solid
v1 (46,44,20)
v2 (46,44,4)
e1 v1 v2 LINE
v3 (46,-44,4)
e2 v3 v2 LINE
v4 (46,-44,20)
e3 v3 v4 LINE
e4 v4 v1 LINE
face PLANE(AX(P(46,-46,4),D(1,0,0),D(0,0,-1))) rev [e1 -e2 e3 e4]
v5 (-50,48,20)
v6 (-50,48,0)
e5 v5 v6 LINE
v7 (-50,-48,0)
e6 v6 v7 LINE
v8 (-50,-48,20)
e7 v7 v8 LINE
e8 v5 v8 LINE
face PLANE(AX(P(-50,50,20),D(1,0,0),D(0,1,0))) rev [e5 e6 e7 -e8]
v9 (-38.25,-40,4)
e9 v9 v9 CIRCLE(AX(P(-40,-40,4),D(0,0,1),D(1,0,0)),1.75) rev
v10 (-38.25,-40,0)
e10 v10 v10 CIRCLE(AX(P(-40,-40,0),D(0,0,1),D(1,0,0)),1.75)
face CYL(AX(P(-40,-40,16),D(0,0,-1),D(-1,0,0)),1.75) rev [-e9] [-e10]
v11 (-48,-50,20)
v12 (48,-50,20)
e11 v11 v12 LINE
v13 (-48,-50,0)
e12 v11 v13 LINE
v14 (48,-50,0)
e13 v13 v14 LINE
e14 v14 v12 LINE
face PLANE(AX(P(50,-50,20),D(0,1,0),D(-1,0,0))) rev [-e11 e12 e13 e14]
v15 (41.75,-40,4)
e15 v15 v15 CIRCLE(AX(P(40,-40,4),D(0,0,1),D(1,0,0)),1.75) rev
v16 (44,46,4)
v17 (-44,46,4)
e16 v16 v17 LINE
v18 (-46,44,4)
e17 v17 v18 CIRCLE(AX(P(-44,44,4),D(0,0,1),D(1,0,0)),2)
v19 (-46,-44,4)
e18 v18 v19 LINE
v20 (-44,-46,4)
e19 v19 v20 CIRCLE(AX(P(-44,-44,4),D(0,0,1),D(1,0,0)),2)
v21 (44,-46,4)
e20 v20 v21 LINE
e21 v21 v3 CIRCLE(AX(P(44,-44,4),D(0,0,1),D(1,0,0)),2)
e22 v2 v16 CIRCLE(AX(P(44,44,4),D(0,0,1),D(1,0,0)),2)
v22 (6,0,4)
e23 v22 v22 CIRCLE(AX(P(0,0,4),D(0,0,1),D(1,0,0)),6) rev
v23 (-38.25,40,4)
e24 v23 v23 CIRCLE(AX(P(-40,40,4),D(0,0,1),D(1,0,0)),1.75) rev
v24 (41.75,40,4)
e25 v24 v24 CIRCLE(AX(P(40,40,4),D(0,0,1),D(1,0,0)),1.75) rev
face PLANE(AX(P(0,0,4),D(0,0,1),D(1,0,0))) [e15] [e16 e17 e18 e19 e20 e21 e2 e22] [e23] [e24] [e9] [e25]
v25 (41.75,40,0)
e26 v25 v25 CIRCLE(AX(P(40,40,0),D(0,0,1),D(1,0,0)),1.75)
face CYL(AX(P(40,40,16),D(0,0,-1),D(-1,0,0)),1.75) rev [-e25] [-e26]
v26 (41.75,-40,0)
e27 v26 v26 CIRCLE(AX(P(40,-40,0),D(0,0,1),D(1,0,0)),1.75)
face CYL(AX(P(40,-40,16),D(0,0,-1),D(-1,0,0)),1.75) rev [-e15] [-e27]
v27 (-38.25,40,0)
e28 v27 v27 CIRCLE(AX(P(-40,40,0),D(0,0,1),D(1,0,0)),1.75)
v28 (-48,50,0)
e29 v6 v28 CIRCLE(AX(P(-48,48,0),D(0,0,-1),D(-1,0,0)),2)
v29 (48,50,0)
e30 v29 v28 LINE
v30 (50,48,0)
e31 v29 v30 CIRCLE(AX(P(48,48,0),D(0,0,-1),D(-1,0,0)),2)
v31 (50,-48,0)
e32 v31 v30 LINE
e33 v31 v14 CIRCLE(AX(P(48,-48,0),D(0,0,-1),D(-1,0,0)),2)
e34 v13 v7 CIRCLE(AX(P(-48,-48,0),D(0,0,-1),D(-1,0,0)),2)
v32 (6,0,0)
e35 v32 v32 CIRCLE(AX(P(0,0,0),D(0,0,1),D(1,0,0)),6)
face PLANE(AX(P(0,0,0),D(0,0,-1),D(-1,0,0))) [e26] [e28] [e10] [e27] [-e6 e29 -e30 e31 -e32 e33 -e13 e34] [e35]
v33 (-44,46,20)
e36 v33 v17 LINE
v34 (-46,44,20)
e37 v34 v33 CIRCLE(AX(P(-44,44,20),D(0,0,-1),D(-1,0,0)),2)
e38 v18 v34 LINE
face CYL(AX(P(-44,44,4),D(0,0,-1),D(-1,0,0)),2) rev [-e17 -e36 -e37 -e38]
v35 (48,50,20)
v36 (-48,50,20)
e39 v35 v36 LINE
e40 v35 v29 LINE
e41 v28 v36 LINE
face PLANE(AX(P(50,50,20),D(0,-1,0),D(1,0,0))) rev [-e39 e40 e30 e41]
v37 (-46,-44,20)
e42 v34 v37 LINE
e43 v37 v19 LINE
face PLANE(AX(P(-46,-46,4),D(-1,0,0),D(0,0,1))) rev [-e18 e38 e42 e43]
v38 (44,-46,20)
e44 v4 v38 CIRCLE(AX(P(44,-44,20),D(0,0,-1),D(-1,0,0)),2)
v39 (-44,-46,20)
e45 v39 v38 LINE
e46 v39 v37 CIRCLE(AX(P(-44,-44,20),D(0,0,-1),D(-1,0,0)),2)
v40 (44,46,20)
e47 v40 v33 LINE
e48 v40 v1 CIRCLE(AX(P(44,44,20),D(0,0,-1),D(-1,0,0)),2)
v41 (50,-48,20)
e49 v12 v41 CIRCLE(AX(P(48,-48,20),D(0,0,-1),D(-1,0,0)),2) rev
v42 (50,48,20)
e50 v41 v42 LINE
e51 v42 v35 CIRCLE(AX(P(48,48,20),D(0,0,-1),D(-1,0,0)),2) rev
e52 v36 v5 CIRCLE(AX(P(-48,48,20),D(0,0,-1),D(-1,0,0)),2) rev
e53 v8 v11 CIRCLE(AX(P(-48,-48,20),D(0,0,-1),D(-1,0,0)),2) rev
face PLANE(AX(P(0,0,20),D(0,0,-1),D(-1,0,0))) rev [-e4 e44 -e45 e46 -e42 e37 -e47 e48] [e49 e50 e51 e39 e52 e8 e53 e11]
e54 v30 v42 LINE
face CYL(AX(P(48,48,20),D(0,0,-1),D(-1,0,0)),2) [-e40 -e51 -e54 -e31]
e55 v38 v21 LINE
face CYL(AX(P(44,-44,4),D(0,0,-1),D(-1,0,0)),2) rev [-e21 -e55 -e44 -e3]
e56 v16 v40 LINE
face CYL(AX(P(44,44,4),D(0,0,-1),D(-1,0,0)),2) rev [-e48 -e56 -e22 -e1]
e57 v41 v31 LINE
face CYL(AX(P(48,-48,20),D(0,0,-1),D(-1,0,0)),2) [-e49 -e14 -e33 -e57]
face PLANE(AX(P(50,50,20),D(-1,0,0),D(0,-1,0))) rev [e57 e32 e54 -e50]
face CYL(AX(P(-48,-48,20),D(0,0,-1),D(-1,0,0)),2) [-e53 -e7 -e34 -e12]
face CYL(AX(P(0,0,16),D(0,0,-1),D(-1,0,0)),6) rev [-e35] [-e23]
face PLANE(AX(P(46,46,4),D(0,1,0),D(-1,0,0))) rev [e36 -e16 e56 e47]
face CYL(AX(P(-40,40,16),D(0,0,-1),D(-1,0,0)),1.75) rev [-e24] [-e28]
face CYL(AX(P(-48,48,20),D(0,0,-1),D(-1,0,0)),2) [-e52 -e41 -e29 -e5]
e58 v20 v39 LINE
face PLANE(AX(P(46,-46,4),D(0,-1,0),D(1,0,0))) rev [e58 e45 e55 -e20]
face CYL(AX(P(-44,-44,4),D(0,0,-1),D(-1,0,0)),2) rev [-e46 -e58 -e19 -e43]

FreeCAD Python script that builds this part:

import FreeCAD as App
import Part
import Sketcher
from FreeCAD import Vector
Q = App.Units.Quantity


def edges_at(feature, points):
    """Names of the edges that pass closest to the given points."""
    edges = feature.Shape.Edges
    near = lambda p: min(range(len(edges)), key=lambda i: edges[i].distToShape(Part.Vertex(*p))[0])
    return sorted({f"Edge{near(p) + 1}" for p in points})


def add_polygon(sketch, points):
    """Adds a closed chain of lines whose ends are joined by coincident constraints."""
    first, n = sketch.GeometryCount, len(points)
    for a, b in zip(points, points[1:] + points[:1]):
        sketch.addGeometry(Part.LineSegment(App.Vector(*a, 0), App.Vector(*b, 0)), False)
    for i in range(n):
        sketch.addConstraint(Sketcher.Constraint("Coincident", first + i, 2, first + (i + 1) % n, 1))

doc = App.newDocument("Part")
body = doc.addObject("PartDesign::Body", "Body")

# Sketch on XY plane
sketch1 = doc.addObject("Sketcher::SketchObject", "Sketch")
body.addObject(sketch1)
sketch1.AttachmentSupport = (doc.XY_Plane, [""])
sketch1.MapMode = "FlatFace"
add_polygon(sketch1, [(-50, 50), (-50, -50), (50, -50), (50, 50)])  # lines 0-3
sketch1.addConstraint([
    Sketcher.Constraint("Vertical", 0),
    Sketcher.Constraint("Horizontal", 1),
    Sketcher.Constraint("Vertical", 2),
    Sketcher.Constraint("Horizontal", 3),
    Sketcher.Constraint("Symmetric", 0, 2, 2, 2, -1, 1),
    Sketcher.Constraint("Equal", 3, 0),
    Sketcher.Constraint("DistanceX", 1, 1, 1, 2, Q("100 mm")),
])
pad1 = doc.addObject("PartDesign::Pad", "Pad")
body.addObject(pad1)
pad1.Profile = sketch1
pad1.Length = 20

# Sketch on XY plane
sketch2 = doc.addObject("Sketcher::SketchObject", "Sketch001")
body.addObject(sketch2)
sketch2.AttachmentSupport = (doc.XY_Plane, [""])
sketch2.MapMode = "FlatFace"
sketch2.AttachmentOffset = App.Placement(Vector(0, 0, 20), App.Rotation())
add_polygon(sketch2, [(-46, 46), (-46, -46), (46, -46), (46, 46)])  # lines 0-3
sketch2.addConstraint([
    Sketcher.Constraint("Vertical", 0),
    Sketcher.Constraint("Horizontal", 1),
    Sketcher.Constraint("Vertical", 2),
    Sketcher.Constraint("Horizontal", 3),
    Sketcher.Constraint("Symmetric", 0, 2, 2, 2, -1, 1),
    Sketcher.Constraint("Equal", 3, 0),
    Sketcher.Constraint("DistanceX", 1, 1, 1, 2, Q("92 mm")),
])
pocket1 = doc.addObject("PartDesign::Pocket", "Pocket")
body.addObject(pocket1)
pocket1.Profile = sketch2
pocket1.Length = 16
doc.recompute()

fillet = doc.addObject("PartDesign::Fillet", "Fillet")
body.addObject(fillet)
fillet.Base = (pocket1, edges_at(pocket1, [
    (-46, -46, 12),
    (-46, 46, 12),
    (46, 46, 12),
    (46, -46, 12),
    (-50, 50, 10),
    (50, 50, 10),
    (50, -50, 10),
    (-50, -50, 10),
]))
fillet.Radius = 2

# Sketch on XY plane
sketch3 = doc.addObject("Sketcher::SketchObject", "Sketch002")
body.addObject(sketch3)
sketch3.AttachmentSupport = (doc.XY_Plane, [""])
sketch3.MapMode = "FlatFace"
sketch3.addGeometry([
    Part.Circle(Vector(0, 0, 0), Vector(0, 0, 1), 6),  # 0
    Part.Circle(Vector(-40, 40, 0), Vector(0, 0, 1), 1.8),  # 1
    Part.Circle(Vector(40, 40, 0), Vector(0, 0, 1), 1.8),  # 2
    Part.Circle(Vector(40, -40, 0), Vector(0, 0, 1), 1.8),  # 3
    Part.Circle(Vector(-40, -40, 0), Vector(0, 0, 1), 1.8),  # 4
], False)
sketch3.addConstraint([
    Sketcher.Constraint("Coincident", 0, 3, -1, 1),
    Sketcher.Constraint("Equal", 1, 2),
    Sketcher.Constraint("Equal", 2, 3),
    Sketcher.Constraint("Equal", 3, 4),
    Sketcher.Constraint("Symmetric", 1, 3, 3, 3, -1, 1),
    Sketcher.Constraint("Symmetric", 2, 3, 4, 3, -1, 1),
    Sketcher.Constraint("Symmetric", 1, 3, 2, 3, -2),
    Sketcher.Constraint("Diameter", 0, Q("12 mm")),
    Sketcher.Constraint("Diameter", 1, Q("3.5 mm")),
    Sketcher.Constraint("DistanceX", 1, 3, -1, 1, Q("40 mm")),
    Sketcher.Constraint("DistanceY", -1, 1, 1, 3, Q("40 mm")),
])
pocket2 = doc.addObject("PartDesign::Pocket", "Pocket001")
body.addObject(pocket2)
pocket2.Profile = sketch3
pocket2.Length = 16
pocket2.Reversed = True

doc.recompute()
